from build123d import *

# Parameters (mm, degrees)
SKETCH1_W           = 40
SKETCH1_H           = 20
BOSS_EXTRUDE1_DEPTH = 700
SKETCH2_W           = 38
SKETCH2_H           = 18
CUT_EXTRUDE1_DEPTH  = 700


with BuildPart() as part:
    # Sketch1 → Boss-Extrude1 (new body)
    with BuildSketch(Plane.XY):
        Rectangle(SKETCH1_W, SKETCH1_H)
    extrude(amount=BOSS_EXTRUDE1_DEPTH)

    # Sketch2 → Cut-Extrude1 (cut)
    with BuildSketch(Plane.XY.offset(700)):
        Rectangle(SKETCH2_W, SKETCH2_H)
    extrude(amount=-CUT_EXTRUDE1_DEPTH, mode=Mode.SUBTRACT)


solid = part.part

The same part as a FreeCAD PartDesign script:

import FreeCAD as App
import Part
import Sketcher

V = App.Vector


def add_polygon(sketch, points):
    """Adds a closed chain of lines whose ends are joined by coincident constraints."""
    first, n = sketch.GeometryCount, len(points)
    for a, b in zip(points, points[1:] + points[:1]):
        sketch.addGeometry(Part.LineSegment(App.Vector(*a, 0), App.Vector(*b, 0)), False)
    for i in range(n):
        sketch.addConstraint(Sketcher.Constraint("Coincident", first + i, 2, first + (i + 1) % n, 1))

doc = App.newDocument("Part")
body = doc.addObject("PartDesign::Body", "Body")

# Sketch on XY plane
sketch1 = body.newObject("Sketcher::SketchObject", "Sketch")
sketch1.AttachmentSupport = (doc.getObject("XY_Plane"), [""])
sketch1.MapMode = "FlatFace"
add_polygon(sketch1, [(-20, 10), (-20, -10), (20, -10), (20, 10)])  # lines 0-3
sketch1.addConstraint([
    Sketcher.Constraint("Vertical", 0),
    Sketcher.Constraint("Horizontal", 1),
    Sketcher.Constraint("Vertical", 2),
    Sketcher.Constraint("Horizontal", 3),
    Sketcher.Constraint("Symmetric", 0, 2, 2, 2, -1, 1),
    Sketcher.Constraint("DistanceX", 1, 1, 1, 2, 40.0),
    Sketcher.Constraint("DistanceY", 0, 2, 0, 1, 20.0),
])
pad1 = body.newObject("PartDesign::Pad", "Pad")
pad1.Profile = sketch1
pad1.Length = 700

# Sketch on XY plane
sketch2 = body.newObject("Sketcher::SketchObject", "Sketch001")
sketch2.AttachmentSupport = (doc.getObject("XY_Plane"), [""])
sketch2.MapMode = "FlatFace"
sketch2.AttachmentOffset = App.Placement(V(0, 0, 700), App.Rotation())
add_polygon(sketch2, [(-19, 9), (-19, -9), (19, -9), (19, 9)])  # lines 0-3
sketch2.addConstraint([
    Sketcher.Constraint("Vertical", 0),
    Sketcher.Constraint("Horizontal", 1),
    Sketcher.Constraint("Vertical", 2),
    Sketcher.Constraint("Horizontal", 3),
    Sketcher.Constraint("Symmetric", 0, 2, 2, 2, -1, 1),
    Sketcher.Constraint("DistanceX", 1, 1, 1, 2, 38.0),
    Sketcher.Constraint("DistanceY", 0, 2, 0, 1, 18.0),
])
pocket1 = body.newObject("PartDesign::Pocket", "Pocket")
pocket1.Profile = sketch2
pocket1.Length = 700

doc.recompute()
